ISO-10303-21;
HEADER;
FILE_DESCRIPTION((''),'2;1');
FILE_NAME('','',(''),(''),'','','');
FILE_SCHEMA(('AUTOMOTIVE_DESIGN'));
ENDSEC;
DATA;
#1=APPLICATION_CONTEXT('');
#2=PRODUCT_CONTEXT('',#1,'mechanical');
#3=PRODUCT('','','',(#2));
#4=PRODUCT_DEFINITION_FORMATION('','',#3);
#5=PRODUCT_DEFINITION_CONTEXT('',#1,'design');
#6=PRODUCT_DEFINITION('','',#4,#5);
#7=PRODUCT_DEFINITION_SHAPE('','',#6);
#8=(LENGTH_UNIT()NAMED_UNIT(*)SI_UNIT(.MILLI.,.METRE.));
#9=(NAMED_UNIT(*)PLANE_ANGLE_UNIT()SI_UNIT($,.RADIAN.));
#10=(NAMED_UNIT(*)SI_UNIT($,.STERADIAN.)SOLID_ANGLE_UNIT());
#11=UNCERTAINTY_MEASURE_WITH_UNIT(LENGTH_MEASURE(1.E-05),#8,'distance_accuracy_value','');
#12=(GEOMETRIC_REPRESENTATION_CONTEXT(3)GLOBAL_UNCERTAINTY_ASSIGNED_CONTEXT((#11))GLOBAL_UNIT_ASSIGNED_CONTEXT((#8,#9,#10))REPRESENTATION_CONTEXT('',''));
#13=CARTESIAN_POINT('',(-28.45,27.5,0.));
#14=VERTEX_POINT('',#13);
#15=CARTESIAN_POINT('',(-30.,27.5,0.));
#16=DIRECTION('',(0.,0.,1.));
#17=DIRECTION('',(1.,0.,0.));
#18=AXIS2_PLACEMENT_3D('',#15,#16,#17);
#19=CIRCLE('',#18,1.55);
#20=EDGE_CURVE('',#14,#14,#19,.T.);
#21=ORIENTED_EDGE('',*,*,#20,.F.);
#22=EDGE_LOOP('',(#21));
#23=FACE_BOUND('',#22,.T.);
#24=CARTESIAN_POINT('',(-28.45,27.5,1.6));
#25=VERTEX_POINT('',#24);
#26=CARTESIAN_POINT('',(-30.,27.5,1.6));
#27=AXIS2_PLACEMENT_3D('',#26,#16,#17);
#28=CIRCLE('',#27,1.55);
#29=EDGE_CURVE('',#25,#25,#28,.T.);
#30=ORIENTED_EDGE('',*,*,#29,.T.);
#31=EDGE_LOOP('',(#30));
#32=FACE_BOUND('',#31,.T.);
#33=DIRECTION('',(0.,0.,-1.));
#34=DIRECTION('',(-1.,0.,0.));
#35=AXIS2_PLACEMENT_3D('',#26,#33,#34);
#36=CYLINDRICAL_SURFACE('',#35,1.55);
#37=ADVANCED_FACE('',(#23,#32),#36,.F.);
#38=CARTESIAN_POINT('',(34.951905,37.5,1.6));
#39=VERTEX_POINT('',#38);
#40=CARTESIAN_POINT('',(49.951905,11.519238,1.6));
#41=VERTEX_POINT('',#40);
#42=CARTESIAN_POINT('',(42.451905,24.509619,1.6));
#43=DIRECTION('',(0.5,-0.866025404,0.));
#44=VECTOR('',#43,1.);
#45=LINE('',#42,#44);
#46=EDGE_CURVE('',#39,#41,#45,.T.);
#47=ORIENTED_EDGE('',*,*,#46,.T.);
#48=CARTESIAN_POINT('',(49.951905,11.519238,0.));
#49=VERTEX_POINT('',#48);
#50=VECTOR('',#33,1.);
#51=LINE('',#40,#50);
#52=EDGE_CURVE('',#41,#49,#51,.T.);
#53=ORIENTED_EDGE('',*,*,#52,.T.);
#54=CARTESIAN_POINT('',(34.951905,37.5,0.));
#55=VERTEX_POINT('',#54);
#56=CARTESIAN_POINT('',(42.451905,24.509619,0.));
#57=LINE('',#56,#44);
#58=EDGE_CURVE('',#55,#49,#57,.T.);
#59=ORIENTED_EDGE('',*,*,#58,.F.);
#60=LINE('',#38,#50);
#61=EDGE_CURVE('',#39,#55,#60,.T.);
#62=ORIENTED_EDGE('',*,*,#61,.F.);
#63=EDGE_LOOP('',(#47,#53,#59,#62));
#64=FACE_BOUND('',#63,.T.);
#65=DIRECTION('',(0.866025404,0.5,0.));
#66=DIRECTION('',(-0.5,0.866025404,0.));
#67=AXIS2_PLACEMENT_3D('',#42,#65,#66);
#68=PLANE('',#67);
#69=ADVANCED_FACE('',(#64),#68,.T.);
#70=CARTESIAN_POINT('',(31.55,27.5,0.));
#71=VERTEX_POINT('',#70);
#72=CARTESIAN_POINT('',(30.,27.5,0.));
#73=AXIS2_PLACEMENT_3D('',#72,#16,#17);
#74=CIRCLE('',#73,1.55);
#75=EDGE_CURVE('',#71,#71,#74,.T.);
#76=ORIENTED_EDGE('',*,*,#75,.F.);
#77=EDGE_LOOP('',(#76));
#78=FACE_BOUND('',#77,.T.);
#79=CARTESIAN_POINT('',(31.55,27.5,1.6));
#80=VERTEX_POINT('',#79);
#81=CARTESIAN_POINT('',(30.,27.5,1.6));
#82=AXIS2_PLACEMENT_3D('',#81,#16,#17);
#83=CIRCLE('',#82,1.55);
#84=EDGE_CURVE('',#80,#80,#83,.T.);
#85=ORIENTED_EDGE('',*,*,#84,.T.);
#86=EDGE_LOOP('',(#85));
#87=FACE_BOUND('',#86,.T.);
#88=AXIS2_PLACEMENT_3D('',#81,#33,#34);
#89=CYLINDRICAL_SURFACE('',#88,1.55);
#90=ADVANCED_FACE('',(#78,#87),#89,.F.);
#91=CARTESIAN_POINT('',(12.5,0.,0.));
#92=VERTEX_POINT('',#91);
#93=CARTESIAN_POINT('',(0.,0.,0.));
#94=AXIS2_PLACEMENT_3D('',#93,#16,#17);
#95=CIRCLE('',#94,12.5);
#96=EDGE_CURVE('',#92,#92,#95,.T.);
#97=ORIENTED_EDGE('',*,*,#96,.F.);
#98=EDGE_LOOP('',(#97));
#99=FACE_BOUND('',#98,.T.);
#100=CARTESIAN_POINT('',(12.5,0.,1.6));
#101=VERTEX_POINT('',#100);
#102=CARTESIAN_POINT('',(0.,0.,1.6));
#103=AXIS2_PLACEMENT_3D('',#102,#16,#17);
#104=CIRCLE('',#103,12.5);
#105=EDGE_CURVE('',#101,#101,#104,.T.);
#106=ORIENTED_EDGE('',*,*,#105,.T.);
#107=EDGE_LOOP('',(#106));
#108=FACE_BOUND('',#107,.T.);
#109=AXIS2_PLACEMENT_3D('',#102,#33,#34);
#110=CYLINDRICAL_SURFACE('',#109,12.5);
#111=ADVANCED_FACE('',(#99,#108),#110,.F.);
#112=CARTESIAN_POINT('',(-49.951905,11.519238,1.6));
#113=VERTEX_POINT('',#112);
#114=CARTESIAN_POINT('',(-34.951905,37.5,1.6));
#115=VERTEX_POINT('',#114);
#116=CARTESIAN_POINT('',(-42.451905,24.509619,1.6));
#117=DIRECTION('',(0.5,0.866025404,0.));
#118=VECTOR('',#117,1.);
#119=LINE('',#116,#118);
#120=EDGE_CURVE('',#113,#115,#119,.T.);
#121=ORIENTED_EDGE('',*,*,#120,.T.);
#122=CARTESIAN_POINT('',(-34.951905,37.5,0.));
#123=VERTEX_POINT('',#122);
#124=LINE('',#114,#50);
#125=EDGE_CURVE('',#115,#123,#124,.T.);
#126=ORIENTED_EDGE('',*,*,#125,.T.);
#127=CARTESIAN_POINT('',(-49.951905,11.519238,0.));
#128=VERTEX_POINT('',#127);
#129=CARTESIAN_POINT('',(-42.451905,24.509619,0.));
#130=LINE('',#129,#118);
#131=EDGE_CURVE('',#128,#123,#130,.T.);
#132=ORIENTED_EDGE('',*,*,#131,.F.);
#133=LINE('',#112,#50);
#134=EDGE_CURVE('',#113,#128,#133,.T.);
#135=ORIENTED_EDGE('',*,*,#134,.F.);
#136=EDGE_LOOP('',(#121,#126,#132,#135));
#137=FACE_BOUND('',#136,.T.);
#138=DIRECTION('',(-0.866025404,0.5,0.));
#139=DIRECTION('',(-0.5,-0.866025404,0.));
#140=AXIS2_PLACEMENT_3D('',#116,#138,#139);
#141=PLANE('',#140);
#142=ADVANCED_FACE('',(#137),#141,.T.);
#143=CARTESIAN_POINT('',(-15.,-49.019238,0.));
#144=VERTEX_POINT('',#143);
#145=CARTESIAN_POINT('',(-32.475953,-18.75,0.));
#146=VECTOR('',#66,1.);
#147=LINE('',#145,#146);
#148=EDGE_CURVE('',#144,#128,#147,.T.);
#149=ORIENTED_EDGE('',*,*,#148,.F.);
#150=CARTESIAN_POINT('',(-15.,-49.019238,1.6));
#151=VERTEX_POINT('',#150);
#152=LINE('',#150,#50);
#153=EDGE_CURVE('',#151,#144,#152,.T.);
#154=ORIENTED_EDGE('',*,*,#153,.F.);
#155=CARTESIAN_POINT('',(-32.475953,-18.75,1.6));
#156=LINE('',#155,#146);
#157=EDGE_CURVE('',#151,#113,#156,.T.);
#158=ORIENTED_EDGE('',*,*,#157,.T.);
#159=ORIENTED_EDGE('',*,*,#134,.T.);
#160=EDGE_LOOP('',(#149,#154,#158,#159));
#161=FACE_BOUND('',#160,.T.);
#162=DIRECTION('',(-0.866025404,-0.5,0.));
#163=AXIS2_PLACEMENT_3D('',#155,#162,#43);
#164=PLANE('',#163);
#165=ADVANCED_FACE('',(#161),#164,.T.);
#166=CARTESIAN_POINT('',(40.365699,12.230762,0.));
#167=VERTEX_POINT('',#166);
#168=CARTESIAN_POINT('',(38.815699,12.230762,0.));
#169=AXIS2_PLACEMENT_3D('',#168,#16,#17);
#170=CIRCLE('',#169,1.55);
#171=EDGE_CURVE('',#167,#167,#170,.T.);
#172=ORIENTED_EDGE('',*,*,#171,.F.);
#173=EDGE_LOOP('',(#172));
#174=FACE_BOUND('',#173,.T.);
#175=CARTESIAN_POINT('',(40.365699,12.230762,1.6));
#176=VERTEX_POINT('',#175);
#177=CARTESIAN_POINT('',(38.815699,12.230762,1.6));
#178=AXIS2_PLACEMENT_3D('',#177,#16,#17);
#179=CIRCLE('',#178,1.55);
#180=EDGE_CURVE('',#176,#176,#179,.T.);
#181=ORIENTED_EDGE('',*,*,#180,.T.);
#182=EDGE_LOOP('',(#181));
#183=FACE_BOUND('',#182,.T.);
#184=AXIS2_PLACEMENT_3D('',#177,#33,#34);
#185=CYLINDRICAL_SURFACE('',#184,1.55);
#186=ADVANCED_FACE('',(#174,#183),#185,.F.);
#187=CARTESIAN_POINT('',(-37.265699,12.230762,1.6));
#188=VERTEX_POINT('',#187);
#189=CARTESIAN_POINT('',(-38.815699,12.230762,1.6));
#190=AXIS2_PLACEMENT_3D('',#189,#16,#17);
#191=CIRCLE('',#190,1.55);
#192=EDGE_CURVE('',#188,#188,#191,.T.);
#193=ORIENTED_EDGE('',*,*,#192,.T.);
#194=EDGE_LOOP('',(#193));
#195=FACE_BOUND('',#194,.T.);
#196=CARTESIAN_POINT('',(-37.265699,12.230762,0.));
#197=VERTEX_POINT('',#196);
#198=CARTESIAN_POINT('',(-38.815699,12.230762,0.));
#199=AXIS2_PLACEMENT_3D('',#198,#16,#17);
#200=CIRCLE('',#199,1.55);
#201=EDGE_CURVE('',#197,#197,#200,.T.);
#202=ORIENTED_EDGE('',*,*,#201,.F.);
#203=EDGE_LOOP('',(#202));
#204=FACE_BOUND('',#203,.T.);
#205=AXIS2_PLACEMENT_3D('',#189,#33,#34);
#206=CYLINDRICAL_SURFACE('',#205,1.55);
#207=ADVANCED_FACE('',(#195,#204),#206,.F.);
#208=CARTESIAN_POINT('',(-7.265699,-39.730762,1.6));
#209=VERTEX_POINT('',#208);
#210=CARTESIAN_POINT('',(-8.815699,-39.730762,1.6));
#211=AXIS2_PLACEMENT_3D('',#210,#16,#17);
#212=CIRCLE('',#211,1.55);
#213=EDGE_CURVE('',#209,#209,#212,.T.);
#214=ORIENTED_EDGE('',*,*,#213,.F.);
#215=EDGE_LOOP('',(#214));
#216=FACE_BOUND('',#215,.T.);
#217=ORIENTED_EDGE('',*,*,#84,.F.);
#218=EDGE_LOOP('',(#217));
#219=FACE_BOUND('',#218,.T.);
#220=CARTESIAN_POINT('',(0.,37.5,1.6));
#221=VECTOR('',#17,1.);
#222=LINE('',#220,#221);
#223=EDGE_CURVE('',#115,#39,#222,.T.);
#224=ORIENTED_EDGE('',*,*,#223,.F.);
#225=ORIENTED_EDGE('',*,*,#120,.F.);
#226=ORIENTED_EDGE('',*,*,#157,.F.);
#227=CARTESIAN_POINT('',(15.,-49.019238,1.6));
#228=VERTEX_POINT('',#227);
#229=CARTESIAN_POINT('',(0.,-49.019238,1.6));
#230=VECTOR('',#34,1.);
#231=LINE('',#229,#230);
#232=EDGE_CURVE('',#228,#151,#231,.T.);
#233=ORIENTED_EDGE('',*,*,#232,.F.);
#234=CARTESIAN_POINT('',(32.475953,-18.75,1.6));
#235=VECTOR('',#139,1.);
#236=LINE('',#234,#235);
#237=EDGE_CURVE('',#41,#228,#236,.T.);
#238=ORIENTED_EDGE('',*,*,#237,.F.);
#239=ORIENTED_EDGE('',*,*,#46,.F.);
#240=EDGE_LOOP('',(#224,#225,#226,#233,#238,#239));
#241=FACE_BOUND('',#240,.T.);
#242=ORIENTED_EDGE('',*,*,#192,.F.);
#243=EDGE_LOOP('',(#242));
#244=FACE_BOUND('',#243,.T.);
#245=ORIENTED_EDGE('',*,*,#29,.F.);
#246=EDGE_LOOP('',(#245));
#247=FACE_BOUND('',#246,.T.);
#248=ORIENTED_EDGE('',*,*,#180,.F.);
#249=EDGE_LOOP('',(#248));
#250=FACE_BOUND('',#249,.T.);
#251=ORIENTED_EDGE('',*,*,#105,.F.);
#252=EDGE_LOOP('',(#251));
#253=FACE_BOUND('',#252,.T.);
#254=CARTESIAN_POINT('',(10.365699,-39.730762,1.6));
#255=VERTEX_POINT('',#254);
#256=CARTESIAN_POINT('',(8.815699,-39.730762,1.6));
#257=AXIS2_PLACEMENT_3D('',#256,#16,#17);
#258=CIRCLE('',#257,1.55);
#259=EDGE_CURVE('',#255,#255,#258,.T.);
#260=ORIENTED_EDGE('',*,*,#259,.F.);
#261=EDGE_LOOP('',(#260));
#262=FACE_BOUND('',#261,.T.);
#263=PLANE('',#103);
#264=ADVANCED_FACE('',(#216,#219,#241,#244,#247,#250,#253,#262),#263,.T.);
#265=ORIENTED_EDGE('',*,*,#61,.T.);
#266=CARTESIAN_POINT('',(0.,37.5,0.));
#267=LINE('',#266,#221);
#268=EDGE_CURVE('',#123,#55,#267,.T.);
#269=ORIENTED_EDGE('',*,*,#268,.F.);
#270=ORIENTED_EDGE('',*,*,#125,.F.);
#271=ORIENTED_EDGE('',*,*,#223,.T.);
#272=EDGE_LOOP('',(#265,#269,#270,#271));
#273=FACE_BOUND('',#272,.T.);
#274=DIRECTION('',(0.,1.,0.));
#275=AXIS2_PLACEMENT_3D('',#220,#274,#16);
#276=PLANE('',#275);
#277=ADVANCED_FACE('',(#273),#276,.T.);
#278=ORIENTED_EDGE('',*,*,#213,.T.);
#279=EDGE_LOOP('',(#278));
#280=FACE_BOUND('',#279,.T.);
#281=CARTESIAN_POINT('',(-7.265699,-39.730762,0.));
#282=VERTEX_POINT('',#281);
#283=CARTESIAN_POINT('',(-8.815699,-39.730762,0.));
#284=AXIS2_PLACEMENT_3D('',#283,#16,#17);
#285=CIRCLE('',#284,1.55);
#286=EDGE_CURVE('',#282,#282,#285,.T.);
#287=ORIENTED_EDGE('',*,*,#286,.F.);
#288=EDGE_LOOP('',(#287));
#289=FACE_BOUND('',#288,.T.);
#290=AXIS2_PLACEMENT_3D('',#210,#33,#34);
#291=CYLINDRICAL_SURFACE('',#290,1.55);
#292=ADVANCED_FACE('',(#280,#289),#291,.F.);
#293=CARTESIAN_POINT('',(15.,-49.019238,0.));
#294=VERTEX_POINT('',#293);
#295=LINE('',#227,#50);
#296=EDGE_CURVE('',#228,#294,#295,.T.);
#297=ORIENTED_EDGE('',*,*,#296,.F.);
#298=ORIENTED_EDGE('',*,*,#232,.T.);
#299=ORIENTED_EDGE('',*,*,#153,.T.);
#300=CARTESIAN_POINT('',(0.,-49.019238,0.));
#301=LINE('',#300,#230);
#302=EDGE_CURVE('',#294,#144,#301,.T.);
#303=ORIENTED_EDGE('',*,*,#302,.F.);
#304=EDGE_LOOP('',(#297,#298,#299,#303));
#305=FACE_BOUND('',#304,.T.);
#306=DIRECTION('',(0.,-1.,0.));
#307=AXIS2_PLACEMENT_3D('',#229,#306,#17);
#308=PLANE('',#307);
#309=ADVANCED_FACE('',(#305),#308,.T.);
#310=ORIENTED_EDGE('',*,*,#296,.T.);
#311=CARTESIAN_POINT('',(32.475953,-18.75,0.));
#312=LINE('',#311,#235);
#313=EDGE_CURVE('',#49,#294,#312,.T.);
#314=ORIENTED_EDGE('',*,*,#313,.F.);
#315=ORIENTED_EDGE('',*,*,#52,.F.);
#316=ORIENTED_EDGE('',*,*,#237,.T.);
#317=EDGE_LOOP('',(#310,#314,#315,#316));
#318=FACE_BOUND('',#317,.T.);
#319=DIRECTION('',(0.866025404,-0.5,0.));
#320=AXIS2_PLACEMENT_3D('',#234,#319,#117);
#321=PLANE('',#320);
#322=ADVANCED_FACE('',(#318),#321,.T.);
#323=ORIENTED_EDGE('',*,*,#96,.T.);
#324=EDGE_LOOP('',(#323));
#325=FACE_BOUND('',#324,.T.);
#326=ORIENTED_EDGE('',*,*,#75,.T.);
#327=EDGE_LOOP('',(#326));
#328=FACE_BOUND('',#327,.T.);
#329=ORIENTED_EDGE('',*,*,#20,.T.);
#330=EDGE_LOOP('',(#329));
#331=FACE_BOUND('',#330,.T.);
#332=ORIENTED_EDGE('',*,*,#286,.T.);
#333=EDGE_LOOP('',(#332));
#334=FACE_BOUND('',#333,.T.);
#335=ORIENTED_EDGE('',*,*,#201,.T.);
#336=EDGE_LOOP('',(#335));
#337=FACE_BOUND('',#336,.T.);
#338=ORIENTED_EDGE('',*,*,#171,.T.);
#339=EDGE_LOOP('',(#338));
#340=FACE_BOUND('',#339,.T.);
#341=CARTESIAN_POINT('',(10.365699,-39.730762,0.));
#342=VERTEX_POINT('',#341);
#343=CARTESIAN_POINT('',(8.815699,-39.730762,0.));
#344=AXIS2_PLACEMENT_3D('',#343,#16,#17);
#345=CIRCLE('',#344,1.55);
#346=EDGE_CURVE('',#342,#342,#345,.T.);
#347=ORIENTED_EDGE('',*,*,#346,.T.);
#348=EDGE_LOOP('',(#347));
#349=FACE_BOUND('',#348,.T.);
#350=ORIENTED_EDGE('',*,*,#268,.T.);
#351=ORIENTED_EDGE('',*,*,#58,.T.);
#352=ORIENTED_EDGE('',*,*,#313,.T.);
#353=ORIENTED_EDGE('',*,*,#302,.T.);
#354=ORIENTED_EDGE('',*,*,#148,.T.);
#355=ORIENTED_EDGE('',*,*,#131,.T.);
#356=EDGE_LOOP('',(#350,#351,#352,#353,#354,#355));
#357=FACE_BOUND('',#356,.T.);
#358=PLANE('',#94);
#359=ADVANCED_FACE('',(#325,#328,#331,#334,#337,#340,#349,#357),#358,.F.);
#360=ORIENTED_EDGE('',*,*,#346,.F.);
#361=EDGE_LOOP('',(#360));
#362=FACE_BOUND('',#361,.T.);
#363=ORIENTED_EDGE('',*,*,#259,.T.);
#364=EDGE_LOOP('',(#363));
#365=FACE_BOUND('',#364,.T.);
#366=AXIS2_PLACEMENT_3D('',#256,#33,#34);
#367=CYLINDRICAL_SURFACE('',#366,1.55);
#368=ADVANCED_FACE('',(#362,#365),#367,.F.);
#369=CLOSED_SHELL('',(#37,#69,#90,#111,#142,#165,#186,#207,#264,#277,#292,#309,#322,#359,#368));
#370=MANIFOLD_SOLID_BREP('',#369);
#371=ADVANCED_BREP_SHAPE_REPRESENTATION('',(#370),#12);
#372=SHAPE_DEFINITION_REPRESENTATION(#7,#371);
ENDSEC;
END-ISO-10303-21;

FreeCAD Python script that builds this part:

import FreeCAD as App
import Part
import Sketcher

V = App.Vector
Q = App.Units.Quantity


def add_polygon(sketch, points):
    """Adds a closed chain of lines whose ends are joined by coincident constraints."""
    first, n = sketch.GeometryCount, len(points)
    for a, b in zip(points, points[1:] + points[:1]):
        sketch.addGeometry(Part.LineSegment(App.Vector(*a, 0), App.Vector(*b, 0)), False)
    for i in range(n):
        sketch.addConstraint(Sketcher.Constraint("Coincident", first + i, 2, first + (i + 1) % n, 1))

doc = App.newDocument("Part")
params = doc.addObject("Spreadsheet::Sheet", "Params")
for row, (alias, value) in enumerate([
    ("sketch1_diameter", "25 mm"),
    ("sketch1_diameter2", "3.1 mm"),
    ("sketch1_width", "30 mm"),
    ("sketch1_length", "30 mm"),
    ("pad1_length", "1.6 mm"),
], start=1):
    params.set(f"A{row}", alias)
    params.set(f"B{row}", "=" + value)
    params.setAlias(f"B{row}", alias)

body = doc.addObject("PartDesign::Body", "Body")

sketch1 = body.newObject("Sketcher::SketchObject", "Sketch")
sketch1.AttachmentSupport = (doc.getObject("XY_Plane"), [""])
sketch1.MapMode = "FlatFace"
add_polygon(sketch1, [(35, 37.5), (-35, 37.5), (-50, 11.5), (-15, -49), (15, -49), (50, 11.5)])
sketch1.addGeometry(Part.Circle(V(8.8, -39.7, 0), V(0, 0, 1), 1.6), False)
sketch1.addGeometry(Part.Circle(V(-8.8, -39.7, 0), V(0, 0, 1), 1.6), False)
sketch1.addGeometry(Part.Circle(V(38.8, 12.2, 0), V(0, 0, 1), 1.6), False)
sketch1.addGeometry(Part.Circle(V(30, 27.5, 0), V(0, 0, 1), 1.6), False)
sketch1.addGeometry(Part.Circle(V(0, 0, 0), V(0, 0, 1), 12.5), False)
sketch1.addGeometry(Part.Circle(V(-38.8, 12.2, 0), V(0, 0, 1), 1.6), False)
sketch1.addGeometry(Part.Circle(V(-30, 27.5, 0), V(0, 0, 1), 1.6), False)
sketch1.addConstraint([
    Sketcher.Constraint("Horizontal", 0),
    Sketcher.Constraint("Horizontal", 3),
    Sketcher.Constraint("Coincident", 10, 3, -1, 1),
    Sketcher.Constraint("Equal", 6, 7),
    Sketcher.Constraint("Equal", 7, 8),
    Sketcher.Constraint("Equal", 8, 9),
    Sketcher.Constraint("Equal", 9, 11),
    Sketcher.Constraint("Equal", 11, 12),
    Sketcher.Constraint("Symmetric", 6, 3, 7, 3, -2),
    Sketcher.Constraint("Symmetric", 8, 3, 11, 3, -2),
    Sketcher.Constraint("Symmetric", 9, 3, 12, 3, -2),
    Sketcher.Constraint("Symmetric", 1, 2, 4, 2, -2),
    Sketcher.Constraint("Parallel", 1, 4),
    Sketcher.Constraint("Parallel", 2, 5),
    Sketcher.Constraint("Equal", 2, 4),
    Sketcher.Constraint("Diameter", 10, Q("25 mm")),
    Sketcher.Constraint("Diameter", 6, Q("3.1 mm")),
    Sketcher.Constraint("DistanceX", 3, 1, 3, 2, Q("30 mm")),
    Sketcher.Constraint("Angle", 1, Q("-120 deg")),
    Sketcher.Constraint("Distance", 1, Q("30 mm")),
    Sketcher.Constraint("DistanceX", -1, 1, 9, 3, Q("30 mm")),
    Sketcher.Constraint("DistanceX", 6, 3, 8, 3, Q("30 mm")),
    Sketcher.Constraint("DistanceY", 12, 3, 0, 2, Q("10 mm")),
    Sketcher.Constraint("DistanceY", -1, 1, 9, 3, Q("27.5 mm")),
    Sketcher.Constraint("DistanceY", 7, 3, 1, 2, Q("51.25 mm")),
    Sketcher.Constraint("DistanceY", 2, 2, 11, 3, Q("61.25 mm")),
    Sketcher.Constraint("DistanceX", 0, 2, 0, 1, Q("69.903811 mm")),
    Sketcher.Constraint("DistanceX", -1, 1, 6, 3, Q("8.815699 mm")),
])
sketch1.setExpression("Constraints[21]", "Params.sketch1_diameter")
sketch1.setExpression("Constraints[22]", "Params.sketch1_diameter2")
sketch1.setExpression("Constraints[23]", "Params.sketch1_width")
sketch1.setExpression("Constraints[25]", "Params.sketch1_length")
pad1 = body.newObject("PartDesign::Pad", "Pad")
pad1.Profile = sketch1
pad1.setExpression("Length", "Params.pad1_length")

doc.recompute()
